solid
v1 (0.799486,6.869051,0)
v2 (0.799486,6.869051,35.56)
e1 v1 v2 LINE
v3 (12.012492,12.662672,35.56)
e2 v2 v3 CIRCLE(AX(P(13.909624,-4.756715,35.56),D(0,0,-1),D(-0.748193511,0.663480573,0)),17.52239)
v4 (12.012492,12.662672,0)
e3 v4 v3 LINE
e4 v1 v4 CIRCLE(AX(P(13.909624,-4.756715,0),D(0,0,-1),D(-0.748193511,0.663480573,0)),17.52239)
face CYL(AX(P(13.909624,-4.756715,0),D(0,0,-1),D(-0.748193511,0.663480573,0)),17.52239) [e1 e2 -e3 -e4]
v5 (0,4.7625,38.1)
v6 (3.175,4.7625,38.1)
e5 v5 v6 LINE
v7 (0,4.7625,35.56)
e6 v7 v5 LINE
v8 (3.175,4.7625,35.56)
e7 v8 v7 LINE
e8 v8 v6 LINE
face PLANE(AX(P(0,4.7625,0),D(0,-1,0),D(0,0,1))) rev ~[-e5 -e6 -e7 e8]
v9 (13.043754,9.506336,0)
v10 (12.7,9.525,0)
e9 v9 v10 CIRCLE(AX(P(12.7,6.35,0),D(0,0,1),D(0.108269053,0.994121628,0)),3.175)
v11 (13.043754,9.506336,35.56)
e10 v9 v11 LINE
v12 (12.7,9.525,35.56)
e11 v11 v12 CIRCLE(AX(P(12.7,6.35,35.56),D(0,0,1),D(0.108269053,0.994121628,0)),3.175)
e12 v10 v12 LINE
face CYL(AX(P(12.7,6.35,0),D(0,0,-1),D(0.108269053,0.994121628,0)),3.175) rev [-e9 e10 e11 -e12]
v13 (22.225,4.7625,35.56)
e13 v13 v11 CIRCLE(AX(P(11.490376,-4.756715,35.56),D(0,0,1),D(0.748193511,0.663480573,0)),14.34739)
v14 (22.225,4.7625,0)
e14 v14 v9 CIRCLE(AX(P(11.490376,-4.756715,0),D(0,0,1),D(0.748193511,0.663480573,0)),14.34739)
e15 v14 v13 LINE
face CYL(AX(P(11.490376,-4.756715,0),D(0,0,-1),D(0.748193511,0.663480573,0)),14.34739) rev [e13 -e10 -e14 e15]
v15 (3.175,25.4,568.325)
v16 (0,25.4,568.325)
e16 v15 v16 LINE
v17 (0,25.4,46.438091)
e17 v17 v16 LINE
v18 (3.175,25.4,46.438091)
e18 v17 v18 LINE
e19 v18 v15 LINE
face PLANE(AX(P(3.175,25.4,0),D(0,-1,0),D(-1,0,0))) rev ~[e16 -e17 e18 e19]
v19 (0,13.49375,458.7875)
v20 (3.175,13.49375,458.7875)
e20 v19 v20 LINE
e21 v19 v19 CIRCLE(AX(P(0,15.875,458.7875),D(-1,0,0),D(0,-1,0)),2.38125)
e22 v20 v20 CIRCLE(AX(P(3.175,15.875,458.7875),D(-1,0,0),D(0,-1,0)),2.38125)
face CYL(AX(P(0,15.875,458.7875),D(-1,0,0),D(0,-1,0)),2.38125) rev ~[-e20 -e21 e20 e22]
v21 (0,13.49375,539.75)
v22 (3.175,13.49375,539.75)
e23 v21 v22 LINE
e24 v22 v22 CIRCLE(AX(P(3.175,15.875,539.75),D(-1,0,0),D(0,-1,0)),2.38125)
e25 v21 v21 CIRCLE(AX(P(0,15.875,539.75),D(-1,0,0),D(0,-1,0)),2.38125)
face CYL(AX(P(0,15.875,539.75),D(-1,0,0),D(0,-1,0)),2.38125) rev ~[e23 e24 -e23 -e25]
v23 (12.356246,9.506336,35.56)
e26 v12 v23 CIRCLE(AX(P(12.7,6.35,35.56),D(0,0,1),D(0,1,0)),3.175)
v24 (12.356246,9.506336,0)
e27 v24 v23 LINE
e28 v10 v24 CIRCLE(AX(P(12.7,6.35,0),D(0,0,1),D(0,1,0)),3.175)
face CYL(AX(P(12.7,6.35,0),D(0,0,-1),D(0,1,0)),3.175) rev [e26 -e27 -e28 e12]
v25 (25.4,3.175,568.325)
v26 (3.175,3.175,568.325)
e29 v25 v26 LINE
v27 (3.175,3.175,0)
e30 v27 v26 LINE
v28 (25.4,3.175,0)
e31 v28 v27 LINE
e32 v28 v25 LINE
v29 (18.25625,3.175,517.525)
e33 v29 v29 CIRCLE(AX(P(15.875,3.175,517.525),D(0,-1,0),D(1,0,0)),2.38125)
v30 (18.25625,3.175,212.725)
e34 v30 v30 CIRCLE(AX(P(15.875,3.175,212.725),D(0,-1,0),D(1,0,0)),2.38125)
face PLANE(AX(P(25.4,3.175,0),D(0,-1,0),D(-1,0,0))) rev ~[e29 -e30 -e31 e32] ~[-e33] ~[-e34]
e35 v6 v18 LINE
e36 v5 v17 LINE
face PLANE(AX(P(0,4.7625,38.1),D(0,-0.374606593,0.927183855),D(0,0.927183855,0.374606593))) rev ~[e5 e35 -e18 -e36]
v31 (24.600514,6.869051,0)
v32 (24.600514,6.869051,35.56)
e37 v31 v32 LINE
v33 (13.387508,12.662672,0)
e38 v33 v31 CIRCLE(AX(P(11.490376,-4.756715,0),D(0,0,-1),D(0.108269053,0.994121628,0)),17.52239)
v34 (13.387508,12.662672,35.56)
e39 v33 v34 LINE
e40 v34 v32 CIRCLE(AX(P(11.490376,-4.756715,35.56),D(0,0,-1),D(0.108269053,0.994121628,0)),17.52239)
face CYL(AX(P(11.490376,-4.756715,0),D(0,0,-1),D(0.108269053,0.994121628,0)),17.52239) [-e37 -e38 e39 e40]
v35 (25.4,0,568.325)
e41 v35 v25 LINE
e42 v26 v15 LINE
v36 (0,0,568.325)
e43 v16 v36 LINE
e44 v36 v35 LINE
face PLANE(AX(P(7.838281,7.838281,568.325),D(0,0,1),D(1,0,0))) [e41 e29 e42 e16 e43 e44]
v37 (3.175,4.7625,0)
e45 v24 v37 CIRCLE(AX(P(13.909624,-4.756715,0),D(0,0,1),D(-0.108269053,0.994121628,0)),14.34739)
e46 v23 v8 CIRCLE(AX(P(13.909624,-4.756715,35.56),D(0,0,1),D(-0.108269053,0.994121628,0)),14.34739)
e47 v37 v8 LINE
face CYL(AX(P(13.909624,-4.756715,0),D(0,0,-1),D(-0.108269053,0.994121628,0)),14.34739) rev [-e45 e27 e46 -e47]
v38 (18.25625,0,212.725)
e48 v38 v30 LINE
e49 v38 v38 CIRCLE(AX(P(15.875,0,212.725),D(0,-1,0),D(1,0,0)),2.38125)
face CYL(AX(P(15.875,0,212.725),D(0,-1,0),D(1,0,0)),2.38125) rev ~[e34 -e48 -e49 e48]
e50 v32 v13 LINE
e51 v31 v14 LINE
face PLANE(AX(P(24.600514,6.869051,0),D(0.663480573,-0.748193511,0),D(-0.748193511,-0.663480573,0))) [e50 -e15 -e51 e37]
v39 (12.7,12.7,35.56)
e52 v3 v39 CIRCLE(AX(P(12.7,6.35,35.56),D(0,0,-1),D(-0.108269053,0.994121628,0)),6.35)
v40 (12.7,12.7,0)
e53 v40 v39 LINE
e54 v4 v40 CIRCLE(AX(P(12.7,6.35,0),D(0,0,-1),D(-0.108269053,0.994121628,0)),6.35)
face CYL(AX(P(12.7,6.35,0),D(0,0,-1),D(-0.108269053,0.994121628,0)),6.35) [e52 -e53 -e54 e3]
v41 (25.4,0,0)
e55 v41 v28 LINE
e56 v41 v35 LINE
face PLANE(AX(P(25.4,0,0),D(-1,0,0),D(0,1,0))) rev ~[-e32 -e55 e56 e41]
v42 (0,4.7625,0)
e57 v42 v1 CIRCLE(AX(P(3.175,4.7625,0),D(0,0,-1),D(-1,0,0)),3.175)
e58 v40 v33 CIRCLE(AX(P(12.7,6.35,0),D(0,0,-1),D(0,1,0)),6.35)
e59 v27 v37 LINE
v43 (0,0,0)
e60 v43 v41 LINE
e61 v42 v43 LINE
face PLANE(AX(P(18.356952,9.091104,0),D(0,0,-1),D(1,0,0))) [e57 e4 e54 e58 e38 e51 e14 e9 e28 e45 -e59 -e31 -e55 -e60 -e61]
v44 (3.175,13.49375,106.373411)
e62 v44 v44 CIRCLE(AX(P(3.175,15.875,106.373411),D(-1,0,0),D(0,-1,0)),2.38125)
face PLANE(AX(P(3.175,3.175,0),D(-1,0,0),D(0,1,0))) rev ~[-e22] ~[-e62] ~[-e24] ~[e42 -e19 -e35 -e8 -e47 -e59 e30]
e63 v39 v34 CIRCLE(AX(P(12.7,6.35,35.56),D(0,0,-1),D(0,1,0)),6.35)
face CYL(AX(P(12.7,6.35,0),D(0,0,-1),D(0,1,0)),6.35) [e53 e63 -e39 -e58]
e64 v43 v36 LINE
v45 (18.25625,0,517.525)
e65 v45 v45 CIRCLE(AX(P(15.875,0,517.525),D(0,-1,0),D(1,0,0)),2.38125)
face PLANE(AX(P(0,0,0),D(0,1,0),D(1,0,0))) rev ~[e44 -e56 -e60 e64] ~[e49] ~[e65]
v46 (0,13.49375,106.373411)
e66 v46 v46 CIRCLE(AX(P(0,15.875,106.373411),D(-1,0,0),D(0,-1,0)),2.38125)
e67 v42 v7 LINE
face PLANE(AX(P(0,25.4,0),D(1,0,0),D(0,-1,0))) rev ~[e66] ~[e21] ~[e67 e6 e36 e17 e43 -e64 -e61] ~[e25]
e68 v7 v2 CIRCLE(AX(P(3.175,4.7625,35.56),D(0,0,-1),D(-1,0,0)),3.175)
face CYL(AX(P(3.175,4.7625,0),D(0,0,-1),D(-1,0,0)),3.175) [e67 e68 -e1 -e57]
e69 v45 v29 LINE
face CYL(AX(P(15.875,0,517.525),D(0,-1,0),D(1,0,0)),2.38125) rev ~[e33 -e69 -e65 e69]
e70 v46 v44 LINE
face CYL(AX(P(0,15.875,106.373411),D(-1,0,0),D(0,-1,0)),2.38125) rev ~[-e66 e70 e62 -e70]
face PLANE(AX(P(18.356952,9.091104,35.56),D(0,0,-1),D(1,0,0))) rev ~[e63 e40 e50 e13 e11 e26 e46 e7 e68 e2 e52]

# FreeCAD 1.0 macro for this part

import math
import FreeCAD as App
import Part
import Sketcher

V = App.Vector
Q = App.Units.Quantity

doc = App.newDocument("Part")
body = doc.addObject("PartDesign::Body", "Body")

# Sketch on XY plane
sketch1 = body.newObject("Sketcher::SketchObject", "Sketch")
sketch1.AttachmentSupport = (doc.getObject("XY_Plane"), [""])
sketch1.MapMode = "FlatFace"
sketch1.addGeometry(Part.LineSegment(V(0, 25.4, 0), V(0, 0, 0)), False)
sketch1.addGeometry(Part.LineSegment(V(0, 0, 0), V(25.4, 0, 0)), False)
sketch1.addGeometry(Part.LineSegment(V(25.4, 0, 0), V(25.4, 3.2, 0)), False)
sketch1.addGeometry(Part.LineSegment(V(25.4, 3.2, 0), V(3.2, 3.2, 0)), False)
sketch1.addGeometry(Part.LineSegment(V(3.2, 3.2, 0), V(3.2, 25.4, 0)), False)
sketch1.addGeometry(Part.LineSegment(V(3.2, 25.4, 0), V(0, 25.4, 0)), False)
sketch1.addConstraint(Sketcher.Constraint("Coincident", 0, 2, 1, 1))
sketch1.addConstraint(Sketcher.Constraint("Coincident", 1, 2, 2, 1))
sketch1.addConstraint(Sketcher.Constraint("Coincident", 2, 2, 3, 1))
sketch1.addConstraint(Sketcher.Constraint("Coincident", 3, 2, 4, 1))
sketch1.addConstraint(Sketcher.Constraint("Coincident", 4, 2, 5, 1))
sketch1.addConstraint(Sketcher.Constraint("Coincident", 5, 2, 0, 1))
sketch1.addConstraint(Sketcher.Constraint("Vertical", 0))
sketch1.addConstraint(Sketcher.Constraint("Horizontal", 1))
sketch1.addConstraint(Sketcher.Constraint("Vertical", 2))
sketch1.addConstraint(Sketcher.Constraint("Horizontal", 3))
sketch1.addConstraint(Sketcher.Constraint("Vertical", 4))
sketch1.addConstraint(Sketcher.Constraint("Horizontal", 5))
sketch1.addConstraint(Sketcher.Constraint("Coincident", 0, 2, -1, 1))
sketch1.addConstraint(Sketcher.Constraint("Equal", 1, 0))
sketch1.addConstraint(Sketcher.Constraint("Equal", 5, 2))
sketch1.addConstraint(Sketcher.Constraint("DistanceX", 1, 1, 1, 2, Q("1 in")))
sketch1.addConstraint(Sketcher.Constraint("DistanceX", 3, 2, 3, 1, Q("0.875 in")))
pad1 = body.newObject("PartDesign::Pad", "Pad")
pad1.Profile = sketch1
pad1.Length = Q("22.375 in")

# Sketch on YZ plane
sketch2 = body.newObject("Sketcher::SketchObject", "Sketch001")
sketch2.AttachmentSupport = (doc.getObject("YZ_Plane"), [""])
sketch2.MapMode = "FlatFace"
sketch2.addGeometry(Part.Circle(V(15.9, 539.8, 0), V(0, 0, 1), 2.4), False)
sketch2.addGeometry(Part.Circle(V(15.9, 458.8, 0), V(0, 0, 1), 2.4), False)
sketch2.addGeometry(Part.Circle(V(15.9, 106.4, 0), V(0, 0, 1), 2.4), False)
sketch2.addConstraint(Sketcher.Constraint("Equal", 0, 1))
sketch2.addConstraint(Sketcher.Constraint("Equal", 1, 2))
sketch2.addConstraint(Sketcher.Constraint("Vertical", 0, 3, 1, 3))
sketch2.addConstraint(Sketcher.Constraint("Vertical", 1, 3, 2, 3))
sketch2.addConstraint(Sketcher.Constraint("Diameter", 0, Q("0.1875 in")))
sketch2.addConstraint(Sketcher.Constraint("DistanceY", -1, 1, 0, 3, Q("21.25 in")))
sketch2.addConstraint(Sketcher.Constraint("DistanceX", -1, 1, 0, 3, Q("0.625 in")))
sketch2.addConstraint(Sketcher.Constraint("DistanceY", -1, 1, 1, 3, Q("18.0625 in")))
sketch2.addConstraint(Sketcher.Constraint("DistanceY", -1, 1, 2, 3, 106.373411))
pocket1 = body.newObject("PartDesign::Pocket", "Pocket")
pocket1.Profile = sketch2
pocket1.Length = Q("0.125 in")
pocket1.Reversed = True

# Sketch on XZ plane
sketch3 = body.newObject("Sketcher::SketchObject", "Sketch002")
sketch3.AttachmentSupport = (doc.getObject("XZ_Plane"), [""])
sketch3.MapMode = "FlatFace"
sketch3.addGeometry(Part.Circle(V(15.9, 517.5, 0), V(0, 0, 1), 2.4), False)
sketch3.addGeometry(Part.Circle(V(15.9, 212.7, 0), V(0, 0, 1), 2.4), False)
sketch3.addConstraint(Sketcher.Constraint("Equal", 0, 1))
sketch3.addConstraint(Sketcher.Constraint("Vertical", 0, 3, 1, 3))
sketch3.addConstraint(Sketcher.Constraint("Diameter", 0, Q("0.1875 in")))
sketch3.addConstraint(Sketcher.Constraint("DistanceY", 1, 3, 0, 3, Q("12 in")))
sketch3.addConstraint(Sketcher.Constraint("DistanceX", -1, 1, 0, 3, Q("0.625 in")))
sketch3.addConstraint(Sketcher.Constraint("DistanceY", -1, 1, 0, 3, Q("20.375 in")))
pocket2 = body.newObject("PartDesign::Pocket", "Pocket001")
pocket2.Profile = sketch3
pocket2.Length = Q("0.125 in")

# Sketch on YZ plane
sketch4 = body.newObject("Sketcher::SketchObject", "Sketch003")
sketch4.AttachmentSupport = (doc.getObject("YZ_Plane"), [""])
sketch4.MapMode = "FlatFace"
sketch4.addGeometry(Part.LineSegment(V(25, 0, 0), V(5, 0, 0)), False)
sketch4.addGeometry(Part.LineSegment(V(5, 0, 0), V(5, 38, 0)), False)
sketch4.addGeometry(Part.LineSegment(V(5, 38, 0), V(25, 46, 0)), False)
sketch4.addGeometry(Part.LineSegment(V(25, 46, 0), V(25, 0, 0)), False)
sketch4.addConstraint(Sketcher.Constraint("Coincident", 0, 2, 1, 1))
sketch4.addConstraint(Sketcher.Constraint("Coincident", 1, 2, 2, 1))
sketch4.addConstraint(Sketcher.Constraint("Coincident", 2, 2, 3, 1))
sketch4.addConstraint(Sketcher.Constraint("Coincident", 3, 2, 0, 1))
sketch4.addConstraint(Sketcher.Constraint("Horizontal", 0))
sketch4.addConstraint(Sketcher.Constraint("Vertical", 1))
sketch4.addConstraint(Sketcher.Constraint("Vertical", 3))
sketch4.addConstraint(Sketcher.Constraint("PointOnObject", 0, 2, -1))
sketch4.addConstraint(Sketcher.Constraint("DistanceY", 1, 1, 1, 2, Q("1.5 in")))
sketch4.addConstraint(Sketcher.Constraint("DistanceX", -1, 1, 2, 2, Q("1 in")))
sketch4.addConstraint(Sketcher.Constraint("Angle", 2, Q("22 deg")))
sketch4.addConstraint(Sketcher.Constraint("DistanceX", 0, 2, 0, 1, Q("0.8125 in")))
pocket3 = body.newObject("PartDesign::Pocket", "Pocket002")
pocket3.Profile = sketch4
pocket3.Length = Q("0.125 in")
pocket3.Reversed = True

# Sketch on XY plane
sketch5 = body.newObject("Sketcher::SketchObject", "Sketch004")
sketch5.AttachmentSupport = (doc.getObject("XY_Plane"), [""])
sketch5.MapMode = "FlatFace"
sketch5.addGeometry(Part.ArcOfCircle(Part.Circle(V(12.7, 6.35, 0), V(0, 0, 1), 3.18), math.radians(83.78), math.radians(90)), False)
sketch5.addGeometry(Part.ArcOfCircle(Part.Circle(V(12.7, 6.35, 0), V(0, 0, 1), 3.18), math.radians(90), math.radians(96.22)), False)
sketch5.addGeometry(Part.ArcOfCircle(Part.Circle(V(13.91, -4.76, 0), V(0, 0, 1), 14.35), math.radians(96), math.radians(138)), False)
sketch5.addGeometry(Part.LineSegment(V(3.17, 4.76, 0), V(0, 4.76, 0)), False)
sketch5.addGeometry(Part.ArcOfCircle(Part.Circle(V(3.17, 4.76, 0), V(0, 0, 1), 3.17), math.radians(138), math.radians(180)), False)
sketch5.addGeometry(Part.ArcOfCircle(Part.Circle(V(13.91, -4.76, 0), V(0, 0, 1), 17.52), math.radians(96), math.radians(138)), False)
sketch5.addGeometry(Part.ArcOfCircle(Part.Circle(V(12.7, 6.35, 0), V(0, 0, 1), 6.35), math.radians(90), math.radians(96.22)), False)
sketch5.addGeometry(Part.ArcOfCircle(Part.Circle(V(12.7, 6.35, 0), V(0, 0, 1), 6.35), math.radians(83.78), math.radians(90)), False)
sketch5.addGeometry(Part.ArcOfCircle(Part.Circle(V(11.49, -4.76, 0), V(0, 0, 1), 17.52), math.radians(42), math.radians(84)), False)
sketch5.addGeometry(Part.LineSegment(V(24.6, 6.87, 0), V(22.23, 4.76, 0)), False)
sketch5.addGeometry(Part.ArcOfCircle(Part.Circle(V(11.49, -4.76, 0), V(0, 0, 1), 14.35), math.radians(42), math.radians(84)), False)
sketch5.addConstraint(Sketcher.Constraint("Tangent", 0, 2, 1, 1))
sketch5.addConstraint(Sketcher.Constraint("Tangent", 1, 2, 2, 1))
sketch5.addConstraint(Sketcher.Constraint("Coincident", 2, 2, 3, 1))
sketch5.addConstraint(Sketcher.Constraint("Coincident", 3, 2, 4, 2))
sketch5.addConstraint(Sketcher.Constraint("Tangent", 4, 1, 5, 2))
sketch5.addConstraint(Sketcher.Constraint("Tangent", 5, 1, 6, 2))
sketch5.addConstraint(Sketcher.Constraint("Tangent", 6, 1, 7, 2))
sketch5.addConstraint(Sketcher.Constraint("Tangent", 7, 1, 8, 2))
sketch5.addConstraint(Sketcher.Constraint("Coincident", 8, 1, 9, 1))
sketch5.addConstraint(Sketcher.Constraint("Coincident", 9, 2, 10, 1))
sketch5.addConstraint(Sketcher.Constraint("Tangent", 10, 2, 0, 1))
sketch5.addConstraint(Sketcher.Constraint("Horizontal", 3))
sketch5.addConstraint(Sketcher.Constraint("Coincident", 5, 3, 2, 3))
sketch5.addConstraint(Sketcher.Constraint("Coincident", 6, 3, 0, 3))
sketch5.addConstraint(Sketcher.Constraint("Coincident", 10, 3, 8, 3))
sketch5.addConstraint(Sketcher.Constraint("Coincident", 2, 2, 4, 3))
sketch5.addConstraint(Sketcher.Constraint("Equal", 0, 1))
sketch5.addConstraint(Sketcher.Constraint("Equal", 1, 4))
sketch5.addConstraint(Sketcher.Constraint("Equal", 6, 7))
sketch5.addConstraint(Sketcher.Constraint("Equal", 5, 8))
sketch5.addConstraint(Sketcher.Constraint("PointOnObject", 3, 2, -2))
sketch5.addConstraint(Sketcher.Constraint("Horizontal", 5, 3, 8, 3))
sketch5.addConstraint(Sketcher.Constraint("Horizontal", 4, 1, 8, 1))
sketch5.addConstraint(Sketcher.Constraint("Horizontal", 3, 2, 9, 2))
sketch5.addConstraint(Sketcher.Constraint("Vertical", 7, 3, 0, 2))
sketch5.addConstraint(Sketcher.Constraint("Vertical", 0, 2, 6, 1))
sketch5.addConstraint(Sketcher.Constraint("Radius", 6, Q("0.25 in")))
sketch5.addConstraint(Sketcher.Constraint("DistanceX", -1, 1, 0, 3, Q("0.5 in")))
sketch5.addConstraint(Sketcher.Constraint("DistanceY", -1, 1, 6, 1, Q("0.5 in")))
sketch5.addConstraint(Sketcher.Constraint("DistanceY", -1, 1, 4, 3, Q("0.1875 in")))
sketch5.addConstraint(Sketcher.Constraint("Radius", 2, 14.34739))
pad2 = body.newObject("PartDesign::Pad", "Pad001")
pad2.Profile = sketch5
pad2.Length = Q("1.4 in")

doc.recompute()
